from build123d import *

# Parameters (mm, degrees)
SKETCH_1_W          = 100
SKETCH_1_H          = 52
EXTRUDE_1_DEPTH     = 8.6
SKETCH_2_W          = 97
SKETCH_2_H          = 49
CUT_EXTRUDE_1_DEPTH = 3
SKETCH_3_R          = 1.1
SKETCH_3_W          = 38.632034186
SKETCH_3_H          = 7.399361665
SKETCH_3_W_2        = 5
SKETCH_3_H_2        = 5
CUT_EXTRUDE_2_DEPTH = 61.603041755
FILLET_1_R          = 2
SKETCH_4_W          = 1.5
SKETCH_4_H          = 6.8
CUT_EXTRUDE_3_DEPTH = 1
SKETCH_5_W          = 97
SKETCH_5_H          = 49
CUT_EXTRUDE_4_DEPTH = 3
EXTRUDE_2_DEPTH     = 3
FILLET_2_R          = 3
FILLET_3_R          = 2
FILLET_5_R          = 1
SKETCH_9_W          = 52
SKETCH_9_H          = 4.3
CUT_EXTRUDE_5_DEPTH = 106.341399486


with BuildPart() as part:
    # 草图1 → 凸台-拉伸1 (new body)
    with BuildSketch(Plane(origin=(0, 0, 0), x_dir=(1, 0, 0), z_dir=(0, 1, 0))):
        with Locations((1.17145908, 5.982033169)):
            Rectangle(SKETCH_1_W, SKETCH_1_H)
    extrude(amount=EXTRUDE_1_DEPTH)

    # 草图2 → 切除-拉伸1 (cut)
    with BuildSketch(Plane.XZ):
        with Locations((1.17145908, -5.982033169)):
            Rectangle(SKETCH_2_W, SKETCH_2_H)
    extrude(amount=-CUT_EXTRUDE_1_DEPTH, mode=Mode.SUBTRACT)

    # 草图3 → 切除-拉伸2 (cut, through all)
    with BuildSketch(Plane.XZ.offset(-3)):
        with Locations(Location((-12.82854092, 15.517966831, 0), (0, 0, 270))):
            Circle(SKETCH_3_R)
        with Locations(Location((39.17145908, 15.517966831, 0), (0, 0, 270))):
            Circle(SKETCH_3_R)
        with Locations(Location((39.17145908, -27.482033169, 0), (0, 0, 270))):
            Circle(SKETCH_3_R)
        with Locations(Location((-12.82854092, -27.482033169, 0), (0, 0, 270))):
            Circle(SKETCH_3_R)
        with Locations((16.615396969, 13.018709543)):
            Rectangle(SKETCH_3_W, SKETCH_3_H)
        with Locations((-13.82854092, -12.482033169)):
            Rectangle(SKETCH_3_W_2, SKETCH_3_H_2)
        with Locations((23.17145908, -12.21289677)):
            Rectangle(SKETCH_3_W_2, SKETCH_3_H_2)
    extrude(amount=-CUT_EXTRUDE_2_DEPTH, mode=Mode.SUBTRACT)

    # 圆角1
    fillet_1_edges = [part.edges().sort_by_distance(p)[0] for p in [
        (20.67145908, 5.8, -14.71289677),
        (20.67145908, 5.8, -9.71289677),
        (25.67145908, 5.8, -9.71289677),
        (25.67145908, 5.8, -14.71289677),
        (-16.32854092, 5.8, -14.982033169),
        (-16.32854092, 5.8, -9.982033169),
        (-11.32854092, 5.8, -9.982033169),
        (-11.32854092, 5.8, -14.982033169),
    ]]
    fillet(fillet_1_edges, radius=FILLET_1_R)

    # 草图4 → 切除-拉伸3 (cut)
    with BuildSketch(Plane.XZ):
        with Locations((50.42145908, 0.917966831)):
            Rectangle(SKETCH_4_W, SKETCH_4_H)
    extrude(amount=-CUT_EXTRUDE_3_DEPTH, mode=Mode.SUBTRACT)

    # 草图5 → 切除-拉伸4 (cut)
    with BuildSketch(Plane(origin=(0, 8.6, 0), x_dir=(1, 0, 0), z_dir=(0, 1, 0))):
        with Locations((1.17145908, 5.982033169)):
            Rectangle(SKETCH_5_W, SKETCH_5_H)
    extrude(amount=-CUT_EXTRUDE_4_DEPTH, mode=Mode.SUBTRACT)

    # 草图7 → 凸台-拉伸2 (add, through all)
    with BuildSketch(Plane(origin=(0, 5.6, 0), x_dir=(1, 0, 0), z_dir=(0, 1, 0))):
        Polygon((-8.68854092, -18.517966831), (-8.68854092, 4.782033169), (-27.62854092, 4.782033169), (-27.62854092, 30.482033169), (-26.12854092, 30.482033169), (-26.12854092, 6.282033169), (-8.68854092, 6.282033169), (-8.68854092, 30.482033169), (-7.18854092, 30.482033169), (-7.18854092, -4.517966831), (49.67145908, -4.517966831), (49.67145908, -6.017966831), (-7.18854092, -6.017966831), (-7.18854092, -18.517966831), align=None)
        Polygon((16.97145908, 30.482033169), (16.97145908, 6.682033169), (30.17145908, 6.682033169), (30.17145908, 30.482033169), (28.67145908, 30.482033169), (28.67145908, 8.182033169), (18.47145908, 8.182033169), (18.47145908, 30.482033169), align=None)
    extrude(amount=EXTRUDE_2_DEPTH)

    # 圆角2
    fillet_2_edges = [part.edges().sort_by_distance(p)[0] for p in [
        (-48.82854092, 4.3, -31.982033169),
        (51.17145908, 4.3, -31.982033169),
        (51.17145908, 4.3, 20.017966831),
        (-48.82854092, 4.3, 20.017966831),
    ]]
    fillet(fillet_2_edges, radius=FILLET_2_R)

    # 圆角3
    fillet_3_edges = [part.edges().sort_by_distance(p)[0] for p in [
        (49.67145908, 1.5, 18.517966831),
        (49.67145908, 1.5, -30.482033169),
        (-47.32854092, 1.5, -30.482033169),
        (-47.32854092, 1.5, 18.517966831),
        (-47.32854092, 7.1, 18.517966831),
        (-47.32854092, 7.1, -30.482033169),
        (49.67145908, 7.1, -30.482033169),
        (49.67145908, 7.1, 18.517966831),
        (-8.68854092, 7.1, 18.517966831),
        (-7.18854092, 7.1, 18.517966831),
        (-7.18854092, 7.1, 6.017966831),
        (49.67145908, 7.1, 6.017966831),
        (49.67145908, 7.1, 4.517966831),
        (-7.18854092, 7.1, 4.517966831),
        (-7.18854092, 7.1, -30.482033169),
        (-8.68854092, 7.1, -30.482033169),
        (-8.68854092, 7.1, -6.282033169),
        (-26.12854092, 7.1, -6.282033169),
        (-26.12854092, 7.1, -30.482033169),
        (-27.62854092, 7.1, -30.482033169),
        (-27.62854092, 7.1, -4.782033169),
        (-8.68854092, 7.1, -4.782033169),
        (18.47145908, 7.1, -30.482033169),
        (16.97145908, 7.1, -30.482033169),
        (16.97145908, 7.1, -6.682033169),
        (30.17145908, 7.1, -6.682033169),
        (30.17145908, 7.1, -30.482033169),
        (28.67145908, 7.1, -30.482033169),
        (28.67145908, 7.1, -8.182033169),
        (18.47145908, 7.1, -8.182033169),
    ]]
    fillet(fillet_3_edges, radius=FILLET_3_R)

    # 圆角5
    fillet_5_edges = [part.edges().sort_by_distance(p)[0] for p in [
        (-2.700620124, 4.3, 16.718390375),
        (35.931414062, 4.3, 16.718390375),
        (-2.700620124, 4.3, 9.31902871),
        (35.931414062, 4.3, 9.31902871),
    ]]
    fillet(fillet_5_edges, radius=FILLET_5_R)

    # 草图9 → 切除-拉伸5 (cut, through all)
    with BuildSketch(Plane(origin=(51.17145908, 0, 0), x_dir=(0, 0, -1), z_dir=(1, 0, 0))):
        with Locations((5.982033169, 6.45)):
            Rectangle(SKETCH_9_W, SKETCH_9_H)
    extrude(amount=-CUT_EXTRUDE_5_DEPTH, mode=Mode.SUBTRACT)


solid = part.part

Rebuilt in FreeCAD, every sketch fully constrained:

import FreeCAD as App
import Part
import Sketcher


def edges_at(feature, points):
    """Names of the edges that pass closest to the given points."""
    edges = feature.Shape.Edges
    near = lambda p: min(range(len(edges)), key=lambda i: edges[i].distToShape(Part.Vertex(*p))[0])
    return sorted({f"Edge{near(p) + 1}" for p in points})

doc = App.newDocument("Part")
body = doc.addObject("PartDesign::Body", "Body")

# Sketch on XZ plane
sketch1 = doc.addObject("Sketcher::SketchObject", "Sketch")
body.addObject(sketch1)
sketch1.AttachmentSupport = (doc.XZ_Plane, [""])
sketch1.MapMode = "FlatFace"
sketch1.addGeometry([
    Part.LineSegment(App.Vector(-48.828541, -31.982033, 0), App.Vector(-48.828541, 20.017967, 0)),
    Part.LineSegment(App.Vector(-48.828541, 20.017967, 0), App.Vector(51.171459, 20.017967, 0)),
    Part.LineSegment(App.Vector(51.171459, 20.017967, 0), App.Vector(51.171459, -31.982033, 0)),
    Part.LineSegment(App.Vector(51.171459, -31.982033, 0), App.Vector(-48.828541, -31.982033, 0)),
], False)
sketch1.addConstraint([
    Sketcher.Constraint("Coincident", 0, 2, 1, 1),
    Sketcher.Constraint("Coincident", 1, 2, 2, 1),
    Sketcher.Constraint("Coincident", 2, 2, 3, 1),
    Sketcher.Constraint("Coincident", 3, 2, 0, 1),
    Sketcher.Constraint("Vertical", 0),
    Sketcher.Constraint("Horizontal", 1),
    Sketcher.Constraint("Vertical", 2),
    Sketcher.Constraint("Horizontal", 3),
    Sketcher.Constraint("DistanceX", 1, 1, 1, 2, 100.0),
    Sketcher.Constraint("DistanceY", 0, 1, 0, 2, 52.0),
    Sketcher.Constraint("DistanceX", 0, 2, -1, 1, 48.828541),
    Sketcher.Constraint("DistanceY", -1, 1, 0, 2, 20.017967),
])
pad1 = doc.addObject("PartDesign::Pad", "Pad")
body.addObject(pad1)
pad1.Profile = sketch1
pad1.Length = 8.6
pad1.Reversed = True

# Sketch on XZ plane
sketch2 = doc.addObject("Sketcher::SketchObject", "Sketch001")
body.addObject(sketch2)
sketch2.AttachmentSupport = (doc.XZ_Plane, [""])
sketch2.MapMode = "FlatFace"
sketch2.addGeometry([
    Part.LineSegment(App.Vector(-47.328541, 18.517967, 0), App.Vector(-47.328541, -30.482033, 0)),
    Part.LineSegment(App.Vector(-47.328541, -30.482033, 0), App.Vector(49.671459, -30.482033, 0)),
    Part.LineSegment(App.Vector(49.671459, -30.482033, 0), App.Vector(49.671459, 18.517967, 0)),
    Part.LineSegment(App.Vector(49.671459, 18.517967, 0), App.Vector(-47.328541, 18.517967, 0)),
], False)
sketch2.addConstraint([
    Sketcher.Constraint("Coincident", 0, 2, 1, 1),
    Sketcher.Constraint("Coincident", 1, 2, 2, 1),
    Sketcher.Constraint("Coincident", 2, 2, 3, 1),
    Sketcher.Constraint("Coincident", 3, 2, 0, 1),
    Sketcher.Constraint("Vertical", 0),
    Sketcher.Constraint("Horizontal", 1),
    Sketcher.Constraint("Vertical", 2),
    Sketcher.Constraint("Horizontal", 3),
    Sketcher.Constraint("DistanceX", 1, 1, 1, 2, 97.0),
    Sketcher.Constraint("DistanceY", 0, 2, 0, 1, 49.0),
    Sketcher.Constraint("DistanceX", 0, 2, -1, 1, 47.328541),
    Sketcher.Constraint("DistanceY", 0, 2, -1, 1, 30.482033),
])
pocket1 = doc.addObject("PartDesign::Pocket", "Pocket")
body.addObject(pocket1)
pocket1.Profile = sketch2
pocket1.Length = 3

# Sketch on XZ plane
sketch3 = doc.addObject("Sketcher::SketchObject", "Sketch002")
body.addObject(sketch3)
sketch3.AttachmentSupport = (doc.XZ_Plane, [""])
sketch3.MapMode = "FlatFace"
sketch3.AttachmentOffset = App.Placement(App.Vector(0, 0, -3), App.Rotation())
sketch3.addGeometry([
    Part.Circle(App.Vector(-12.828541, 15.517967, 0), App.Vector(0, 0, 1), 1.1),  # 0
    Part.Circle(App.Vector(39.171459, 15.517967, 0), App.Vector(0, 0, 1), 1.1),  # 1
    Part.Circle(App.Vector(39.171459, -27.482033, 0), App.Vector(0, 0, 1), 1.1),  # 2
    Part.Circle(App.Vector(-12.828541, -27.482033, 0), App.Vector(0, 0, 1), 1.1),  # 3
    Part.LineSegment(App.Vector(-2.70062, 16.71839, 0), App.Vector(-2.70062, 9.319029, 0)),  # 4
    Part.LineSegment(App.Vector(-2.70062, 9.319029, 0), App.Vector(35.931414, 9.319029, 0)),  # 5
    Part.LineSegment(App.Vector(35.931414, 9.319029, 0), App.Vector(35.931414, 16.71839, 0)),  # 6
    Part.LineSegment(App.Vector(35.931414, 16.71839, 0), App.Vector(-2.70062, 16.71839, 0)),  # 7
    Part.LineSegment(App.Vector(-16.328541, -9.982033, 0), App.Vector(-16.328541, -14.982033, 0)),  # 8
    Part.LineSegment(App.Vector(-16.328541, -14.982033, 0), App.Vector(-11.328541, -14.982033, 0)),  # 9
    Part.LineSegment(App.Vector(-11.328541, -14.982033, 0), App.Vector(-11.328541, -9.982033, 0)),  # 10
    Part.LineSegment(App.Vector(-11.328541, -9.982033, 0), App.Vector(-16.328541, -9.982033, 0)),  # 11
    Part.LineSegment(App.Vector(20.671459, -9.712897, 0), App.Vector(20.671459, -14.712897, 0)),  # 12
    Part.LineSegment(App.Vector(20.671459, -14.712897, 0), App.Vector(25.671459, -14.712897, 0)),  # 13
    Part.LineSegment(App.Vector(25.671459, -14.712897, 0), App.Vector(25.671459, -9.712897, 0)),  # 14
    Part.LineSegment(App.Vector(25.671459, -9.712897, 0), App.Vector(20.671459, -9.712897, 0)),  # 15
], False)
sketch3.addConstraint([
    Sketcher.Constraint("Coincident", 4, 2, 5, 1),
    Sketcher.Constraint("Coincident", 5, 2, 6, 1),
    Sketcher.Constraint("Coincident", 6, 2, 7, 1),
    Sketcher.Constraint("Coincident", 7, 2, 4, 1),
    Sketcher.Constraint("Coincident", 8, 2, 9, 1),
    Sketcher.Constraint("Coincident", 9, 2, 10, 1),
    Sketcher.Constraint("Coincident", 10, 2, 11, 1),
    Sketcher.Constraint("Coincident", 11, 2, 8, 1),
    Sketcher.Constraint("Coincident", 12, 2, 13, 1),
    Sketcher.Constraint("Coincident", 13, 2, 14, 1),
    Sketcher.Constraint("Coincident", 14, 2, 15, 1),
    Sketcher.Constraint("Coincident", 15, 2, 12, 1),
    Sketcher.Constraint("Vertical", 4),
    Sketcher.Constraint("Horizontal", 5),
    Sketcher.Constraint("Vertical", 6),
    Sketcher.Constraint("Horizontal", 7),
    Sketcher.Constraint("Vertical", 8),
    Sketcher.Constraint("Horizontal", 9),
    Sketcher.Constraint("Vertical", 10),
    Sketcher.Constraint("Horizontal", 11),
    Sketcher.Constraint("Vertical", 12),
    Sketcher.Constraint("Horizontal", 13),
    Sketcher.Constraint("Vertical", 14),
    Sketcher.Constraint("Horizontal", 15),
    Sketcher.Constraint("Equal", 0, 1),
    Sketcher.Constraint("Equal", 1, 2),
    Sketcher.Constraint("Equal", 2, 3),
    Sketcher.Constraint("Horizontal", 0, 3, 1, 3),
    Sketcher.Constraint("Horizontal", 2, 3, 3, 3),
    Sketcher.Constraint("Vertical", 1, 3, 2, 3),
    Sketcher.Constraint("Vertical", 0, 3, 3, 3),
    Sketcher.Constraint("Equal", 11, 13),
    Sketcher.Constraint("Equal", 15, 8),
    Sketcher.Constraint("Equal", 10, 12),
    Sketcher.Constraint("Diameter", 0, 2.2),
    Sketcher.Constraint("DistanceX", 9, 1, 9, 2, 5.0),
    Sketcher.Constraint("DistanceX", 0, 3, 1, 3, 52.0),
    Sketcher.Constraint("DistanceY", 2, 3, 1, 3, 43.0),
    Sketcher.Constraint("DistanceX", 9, 2, 12, 2, 32.0),
    Sketcher.Constraint("DistanceX", 8, 2, 3, 3, 3.5),
    Sketcher.Constraint("DistanceY", 3, 3, 8, 2, 12.5),
    Sketcher.Constraint("DistanceY", 4, 2, 4, 1, 7.399362),
    Sketcher.Constraint("DistanceX", 5, 1, 5, 2, 38.632034),
    Sketcher.Constraint("DistanceX", 0, 3, -1, 1, 12.828541),
    Sketcher.Constraint("DistanceX", 4, 2, -1, 1, 2.70062),
    Sketcher.Constraint("DistanceY", -1, 1, 4, 2, 9.319029),
    Sketcher.Constraint("DistanceY", 4, 2, 0, 3, 6.198938),
    Sketcher.Constraint("DistanceY", 12, 2, -1, 1, 14.712897),
])
pocket2 = doc.addObject("PartDesign::Pocket", "Pocket001")
body.addObject(pocket2)
pocket2.Profile = sketch3
pocket2.Type = "ThroughAll"
doc.recompute()

fillet = doc.addObject("PartDesign::Fillet", "Fillet")
body.addObject(fillet)
fillet.Base = (pocket2, edges_at(pocket2, [
    (20.671, 5.8, -14.713),
    (20.671, 5.8, -9.713),
    (25.671, 5.8, -9.713),
    (25.671, 5.8, -14.713),
    (-16.329, 5.8, -14.982),
    (-16.329, 5.8, -9.982),
    (-11.329, 5.8, -9.982),
    (-11.329, 5.8, -14.982),
]))
fillet.Radius = 2

# Sketch on XZ plane
sketch4 = doc.addObject("Sketcher::SketchObject", "Sketch003")
body.addObject(sketch4)
sketch4.AttachmentSupport = (doc.XZ_Plane, [""])
sketch4.MapMode = "FlatFace"
sketch4.addGeometry([
    Part.LineSegment(App.Vector(49.671459, 4.317967, 0), App.Vector(49.671459, -2.482033, 0)),
    Part.LineSegment(App.Vector(49.671459, -2.482033, 0), App.Vector(51.171459, -2.482033, 0)),
    Part.LineSegment(App.Vector(51.171459, -2.482033, 0), App.Vector(51.171459, 4.317967, 0)),
    Part.LineSegment(App.Vector(51.171459, 4.317967, 0), App.Vector(49.671459, 4.317967, 0)),
], False)
sketch4.addConstraint([
    Sketcher.Constraint("Coincident", 0, 2, 1, 1),
    Sketcher.Constraint("Coincident", 1, 2, 2, 1),
    Sketcher.Constraint("Coincident", 2, 2, 3, 1),
    Sketcher.Constraint("Coincident", 3, 2, 0, 1),
    Sketcher.Constraint("Vertical", 0),
    Sketcher.Constraint("Horizontal", 1),
    Sketcher.Constraint("Vertical", 2),
    Sketcher.Constraint("Horizontal", 3),
    Sketcher.Constraint("DistanceX", 1, 1, 1, 2, 1.5),
    Sketcher.Constraint("DistanceY", 0, 2, 0, 1, 6.8),
    Sketcher.Constraint("DistanceX", -1, 1, 0, 2, 49.671459),
    Sketcher.Constraint("DistanceY", 0, 2, -1, 1, 2.482033),
])
pocket3 = doc.addObject("PartDesign::Pocket", "Pocket002")
body.addObject(pocket3)
pocket3.Profile = sketch4
pocket3.Length = 1

# Sketch on XZ plane
sketch5 = doc.addObject("Sketcher::SketchObject", "Sketch004")
body.addObject(sketch5)
sketch5.AttachmentSupport = (doc.XZ_Plane, [""])
sketch5.MapMode = "FlatFace"
sketch5.AttachmentOffset = App.Placement(App.Vector(0, 0, -8.6), App.Rotation())
sketch5.addGeometry([
    Part.LineSegment(App.Vector(-47.328541, -30.482033, 0), App.Vector(-47.328541, 18.517967, 0)),
    Part.LineSegment(App.Vector(-47.328541, 18.517967, 0), App.Vector(49.671459, 18.517967, 0)),
    Part.LineSegment(App.Vector(49.671459, 18.517967, 0), App.Vector(49.671459, -30.482033, 0)),
    Part.LineSegment(App.Vector(49.671459, -30.482033, 0), App.Vector(-47.328541, -30.482033, 0)),
], False)
sketch5.addConstraint([
    Sketcher.Constraint("Coincident", 0, 2, 1, 1),
    Sketcher.Constraint("Coincident", 1, 2, 2, 1),
    Sketcher.Constraint("Coincident", 2, 2, 3, 1),
    Sketcher.Constraint("Coincident", 3, 2, 0, 1),
    Sketcher.Constraint("Vertical", 0),
    Sketcher.Constraint("Horizontal", 1),
    Sketcher.Constraint("Vertical", 2),
    Sketcher.Constraint("Horizontal", 3),
    Sketcher.Constraint("DistanceX", 1, 1, 1, 2, 97.0),
    Sketcher.Constraint("DistanceY", 0, 1, 0, 2, 49.0),
    Sketcher.Constraint("DistanceX", 0, 2, -1, 1, 47.328541),
    Sketcher.Constraint("DistanceY", -1, 1, 0, 2, 18.517967),
])
pocket4 = doc.addObject("PartDesign::Pocket", "Pocket003")
body.addObject(pocket4)
pocket4.Profile = sketch5
pocket4.Length = 3
pocket4.Reversed = True

# Sketch on XZ plane
sketch6 = doc.addObject("Sketcher::SketchObject", "Sketch005")
body.addObject(sketch6)
sketch6.AttachmentSupport = (doc.XZ_Plane, [""])
sketch6.MapMode = "FlatFace"
sketch6.AttachmentOffset = App.Placement(App.Vector(0, 0, -5.6), App.Rotation())
sketch6.addGeometry([
    Part.LineSegment(App.Vector(-8.688541, -4.782033, 0), App.Vector(-8.688541, 18.517967, 0)),  # 0
    Part.LineSegment(App.Vector(-8.688541, 18.517967, 0), App.Vector(-7.188541, 18.517967, 0)),  # 1
    Part.LineSegment(App.Vector(-7.188541, 18.517967, 0), App.Vector(-7.188541, 6.017967, 0)),  # 2
    Part.LineSegment(App.Vector(-7.188541, 6.017967, 0), App.Vector(49.671459, 6.017967, 0)),  # 3
    Part.LineSegment(App.Vector(49.671459, 6.017967, 0), App.Vector(49.671459, 4.517967, 0)),  # 4
    Part.LineSegment(App.Vector(49.671459, 4.517967, 0), App.Vector(-7.188541, 4.517967, 0)),  # 5
    Part.LineSegment(App.Vector(-7.188541, 4.517967, 0), App.Vector(-7.188541, -30.482033, 0)),  # 6
    Part.LineSegment(App.Vector(-7.188541, -30.482033, 0), App.Vector(-8.688541, -30.482033, 0)),  # 7
    Part.LineSegment(App.Vector(-8.688541, -30.482033, 0), App.Vector(-8.688541, -6.282033, 0)),  # 8
    Part.LineSegment(App.Vector(-8.688541, -6.282033, 0), App.Vector(-26.128541, -6.282033, 0)),  # 9
    Part.LineSegment(App.Vector(-26.128541, -6.282033, 0), App.Vector(-26.128541, -30.482033, 0)),  # 10
    Part.LineSegment(App.Vector(-26.128541, -30.482033, 0), App.Vector(-27.628541, -30.482033, 0)),  # 11
    Part.LineSegment(App.Vector(-27.628541, -30.482033, 0), App.Vector(-27.628541, -4.782033, 0)),  # 12
    Part.LineSegment(App.Vector(-27.628541, -4.782033, 0), App.Vector(-8.688541, -4.782033, 0)),  # 13
    Part.LineSegment(App.Vector(16.971459, -30.482033, 0), App.Vector(16.971459, -6.682033, 0)),  # 14
    Part.LineSegment(App.Vector(16.971459, -6.682033, 0), App.Vector(30.171459, -6.682033, 0)),  # 15
    Part.LineSegment(App.Vector(30.171459, -6.682033, 0), App.Vector(30.171459, -30.482033, 0)),  # 16
    Part.LineSegment(App.Vector(30.171459, -30.482033, 0), App.Vector(28.671459, -30.482033, 0)),  # 17
    Part.LineSegment(App.Vector(28.671459, -30.482033, 0), App.Vector(28.671459, -8.182033, 0)),  # 18
    Part.LineSegment(App.Vector(28.671459, -8.182033, 0), App.Vector(18.471459, -8.182033, 0)),  # 19
    Part.LineSegment(App.Vector(18.471459, -8.182033, 0), App.Vector(18.471459, -30.482033, 0)),  # 20
    Part.LineSegment(App.Vector(18.471459, -30.482033, 0), App.Vector(16.971459, -30.482033, 0)),  # 21
], False)
sketch6.addConstraint([
    Sketcher.Constraint("Coincident", 0, 2, 1, 1),
    Sketcher.Constraint("Coincident", 1, 2, 2, 1),
    Sketcher.Constraint("Coincident", 2, 2, 3, 1),
    Sketcher.Constraint("Coincident", 3, 2, 4, 1),
    Sketcher.Constraint("Coincident", 4, 2, 5, 1),
    Sketcher.Constraint("Coincident", 5, 2, 6, 1),
    Sketcher.Constraint("Coincident", 6, 2, 7, 1),
    Sketcher.Constraint("Coincident", 7, 2, 8, 1),
    Sketcher.Constraint("Coincident", 8, 2, 9, 1),
    Sketcher.Constraint("Coincident", 9, 2, 10, 1),
    Sketcher.Constraint("Coincident", 10, 2, 11, 1),
    Sketcher.Constraint("Coincident", 11, 2, 12, 1),
    Sketcher.Constraint("Coincident", 12, 2, 13, 1),
    Sketcher.Constraint("Coincident", 13, 2, 0, 1),
    Sketcher.Constraint("Coincident", 14, 2, 15, 1),
    Sketcher.Constraint("Coincident", 15, 2, 16, 1),
    Sketcher.Constraint("Coincident", 16, 2, 17, 1),
    Sketcher.Constraint("Coincident", 17, 2, 18, 1),
    Sketcher.Constraint("Coincident", 18, 2, 19, 1),
    Sketcher.Constraint("Coincident", 19, 2, 20, 1),
    Sketcher.Constraint("Coincident", 20, 2, 21, 1),
    Sketcher.Constraint("Coincident", 21, 2, 14, 1),
    Sketcher.Constraint("Vertical", 0),
    Sketcher.Constraint("Horizontal", 1),
    Sketcher.Constraint("Vertical", 2),
    Sketcher.Constraint("Horizontal", 3),
    Sketcher.Constraint("Vertical", 4),
    Sketcher.Constraint("Horizontal", 5),
    Sketcher.Constraint("Vertical", 6),
    Sketcher.Constraint("Horizontal", 7),
    Sketcher.Constraint("Vertical", 8),
    Sketcher.Constraint("Horizontal", 9),
    Sketcher.Constraint("Vertical", 10),
    Sketcher.Constraint("Horizontal", 11),
    Sketcher.Constraint("Vertical", 12),
    Sketcher.Constraint("Horizontal", 13),
    Sketcher.Constraint("Vertical", 14),
    Sketcher.Constraint("Horizontal", 15),
    Sketcher.Constraint("Vertical", 16),
    Sketcher.Constraint("Horizontal", 17),
    Sketcher.Constraint("Vertical", 18),
    Sketcher.Constraint("Horizontal", 19),
    Sketcher.Constraint("Vertical", 20),
    Sketcher.Constraint("Horizontal", 21),
    Sketcher.Constraint("Horizontal", 7, 2, 10, 2),
    Sketcher.Constraint("Horizontal", 11, 2, 16, 2),
    Sketcher.Constraint("Horizontal", 17, 2, 20, 2),
    Sketcher.Constraint("Vertical", 2, 2, 5, 2),
    Sketcher.Constraint("Vertical", 0, 2, 7, 2),
    Sketcher.Constraint("Equal", 7, 11),
    Sketcher.Constraint("Equal", 11, 17),
    Sketcher.Constraint("Equal", 17, 21),
    Sketcher.Constraint("Equal", 21, 4),
    Sketcher.Constraint("DistanceY", 6, 2, 6, 1, 35.0),
    Sketcher.Constraint("DistanceX", 1, 1, 1, 2, 1.5),
    Sketcher.Constraint("DistanceX", 15, 1, 15, 2, 13.2),
    Sketcher.Constraint("DistanceY", 0, 1, 0, 2, 23.3),
    Sketcher.Constraint("DistanceY", 2, 2, 2, 1, 12.5),
    Sketcher.Constraint("DistanceY", 8, 1, 8, 2, 24.2),
    Sketcher.Constraint("DistanceY", 14, 1, 14, 2, 23.8),
    Sketcher.Constraint("DistanceY", 18, 1, 18, 2, 22.3),
    Sketcher.Constraint("DistanceX", 18, 2, 4, 2, 21.0),
    Sketcher.Constraint("DistanceX", 3, 1, 3, 2, 56.86),
    Sketcher.Constraint("DistanceX", 9, 2, 9, 1, 17.44),
    Sketcher.Constraint("DistanceX", 0, 2, -1, 1, 8.688541),
    Sketcher.Constraint("DistanceY", -1, 1, 0, 2, 18.517967),
])
pad2 = doc.addObject("PartDesign::Pad", "Pad001")
body.addObject(pad2)
pad2.Profile = sketch6
pad2.Length = 3
pad2.Reversed = True
doc.recompute()

fillet2 = doc.addObject("PartDesign::Fillet", "Fillet001")
body.addObject(fillet2)
fillet2.Base = (pad2, edges_at(pad2, [
    (-48.829, 4.3, -31.982),
    (51.171, 4.3, -31.982),
    (51.171, 4.3, 20.018),
    (-48.829, 4.3, 20.018),
]))
fillet2.Radius = 3
doc.recompute()

fillet3 = doc.addObject("PartDesign::Fillet", "Fillet002")
body.addObject(fillet3)
fillet3.Base = (fillet2, edges_at(fillet2, [
    (49.671, 1.5, 18.518),
    (49.671, 1.5, -30.482),
    (-47.329, 1.5, -30.482),
    (-47.329, 1.5, 18.518),
    (-47.329, 7.1, 18.518),
    (-47.329, 7.1, -30.482),
    (49.671, 7.1, -30.482),
    (49.671, 7.1, 18.518),
    (-8.689, 7.1, 18.518),
    (-7.189, 7.1, 18.518),
    (-7.189, 7.1, 6.018),
    (49.671, 7.1, 6.018),
    (49.671, 7.1, 4.518),
    (-7.189, 7.1, 4.518),
    (-7.189, 7.1, -30.482),
    (-8.689, 7.1, -30.482),
    (-8.689, 7.1, -6.282),
    (-26.129, 7.1, -6.282),
    (-26.129, 7.1, -30.482),
    (-27.629, 7.1, -30.482),
    (-27.629, 7.1, -4.782),
    (-8.689, 7.1, -4.782),
    (18.471, 7.1, -30.482),
    (16.971, 7.1, -30.482),
    (16.971, 7.1, -6.682),
    (30.171, 7.1, -6.682),
    (30.171, 7.1, -30.482),
    (28.671, 7.1, -30.482),
    (28.671, 7.1, -8.182),
    (18.471, 7.1, -8.182),
]))
fillet3.Radius = 2
doc.recompute()

fillet4 = doc.addObject("PartDesign::Fillet", "Fillet003")
body.addObject(fillet4)
fillet4.Base = (fillet3, edges_at(fillet3, [
    (-2.701, 4.3, 16.718),
    (35.931, 4.3, 16.718),
    (-2.701, 4.3, 9.319),
    (35.931, 4.3, 9.319),
]))
fillet4.Radius = 1

# Sketch on YZ plane
sketch7 = doc.addObject("Sketcher::SketchObject", "Sketch006")
body.addObject(sketch7)
sketch7.AttachmentSupport = (doc.YZ_Plane, [""])
sketch7.MapMode = "FlatFace"
sketch7.AttachmentOffset = App.Placement(App.Vector(0, 0, 51.171459), App.Rotation())
sketch7.addGeometry([
    Part.LineSegment(App.Vector(8.6, 20.017967, 0), App.Vector(4.3, 20.017967, 0)),
    Part.LineSegment(App.Vector(4.3, 20.017967, 0), App.Vector(4.3, -31.982033, 0)),
    Part.LineSegment(App.Vector(4.3, -31.982033, 0), App.Vector(8.6, -31.982033, 0)),
    Part.LineSegment(App.Vector(8.6, -31.982033, 0), App.Vector(8.6, 20.017967, 0)),
], False)
sketch7.addConstraint([
    Sketcher.Constraint("Coincident", 0, 2, 1, 1),
    Sketcher.Constraint("Coincident", 1, 2, 2, 1),
    Sketcher.Constraint("Coincident", 2, 2, 3, 1),
    Sketcher.Constraint("Coincident", 3, 2, 0, 1),
    Sketcher.Constraint("Horizontal", 0),
    Sketcher.Constraint("Vertical", 1),
    Sketcher.Constraint("Horizontal", 2),
    Sketcher.Constraint("Vertical", 3),
    Sketcher.Constraint("DistanceY", 1, 2, 1, 1, 52.0),
    Sketcher.Constraint("DistanceX", 0, 2, 0, 1, 4.3),
    Sketcher.Constraint("DistanceX", -1, 1, 0, 2, 4.3),
    Sketcher.Constraint("DistanceY", -1, 1, 0, 2, 20.017967),
])
pocket5 = doc.addObject("PartDesign::Pocket", "Pocket004")
body.addObject(pocket5)
pocket5.Profile = sketch7
pocket5.Type = "ThroughAll"

doc.recompute()
